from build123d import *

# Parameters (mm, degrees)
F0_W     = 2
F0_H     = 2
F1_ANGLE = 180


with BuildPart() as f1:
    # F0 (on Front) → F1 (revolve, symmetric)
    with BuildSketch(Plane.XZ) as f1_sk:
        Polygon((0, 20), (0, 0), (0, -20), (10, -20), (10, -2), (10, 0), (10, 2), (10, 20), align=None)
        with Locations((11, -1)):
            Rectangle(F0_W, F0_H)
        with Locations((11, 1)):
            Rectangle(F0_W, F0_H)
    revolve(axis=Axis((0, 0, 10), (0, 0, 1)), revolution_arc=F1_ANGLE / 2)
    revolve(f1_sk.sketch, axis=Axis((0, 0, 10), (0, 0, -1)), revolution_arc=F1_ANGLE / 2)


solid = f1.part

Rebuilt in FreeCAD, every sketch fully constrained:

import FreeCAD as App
import Part
import Sketcher
from FreeCAD import Vector

doc = App.newDocument("Part")
body = doc.addObject("PartDesign::Body", "Body")

# Sketch on XZ plane
sketch1 = doc.addObject("Sketcher::SketchObject", "Sketch")
body.addObject(sketch1)
sketch1.AttachmentSupport = (doc.XZ_Plane, [""])
sketch1.MapMode = "FlatFace"
sketch1.addGeometry([
    Part.LineSegment(Vector(0, 20, 0), Vector(0, -20, 0)),  # 0
    Part.LineSegment(Vector(0, -20, 0), Vector(10, -20, 0)),  # 1
    Part.LineSegment(Vector(10, -20, 0), Vector(10, -2, 0)),  # 2
    Part.LineSegment(Vector(10, -2, 0), Vector(12, -2, 0)),  # 3
    Part.LineSegment(Vector(12, -2, 0), Vector(12, 2, 0)),  # 4
    Part.LineSegment(Vector(12, 2, 0), Vector(10, 2, 0)),  # 5
    Part.LineSegment(Vector(10, 2, 0), Vector(10, 20, 0)),  # 6
    Part.LineSegment(Vector(10, 20, 0), Vector(0, 20, 0)),  # 7
], False)
sketch1.addConstraint([
    Sketcher.Constraint("Coincident", 0, 2, 1, 1),
    Sketcher.Constraint("Coincident", 1, 2, 2, 1),
    Sketcher.Constraint("Coincident", 2, 2, 3, 1),
    Sketcher.Constraint("Coincident", 3, 2, 4, 1),
    Sketcher.Constraint("Coincident", 4, 2, 5, 1),
    Sketcher.Constraint("Coincident", 5, 2, 6, 1),
    Sketcher.Constraint("Coincident", 6, 2, 7, 1),
    Sketcher.Constraint("Coincident", 7, 2, 0, 1),
    Sketcher.Constraint("Vertical", 0),
    Sketcher.Constraint("Horizontal", 1),
    Sketcher.Constraint("Vertical", 2),
    Sketcher.Constraint("Horizontal", 3),
    Sketcher.Constraint("Vertical", 4),
    Sketcher.Constraint("Horizontal", 5),
    Sketcher.Constraint("Vertical", 6),
    Sketcher.Constraint("Horizontal", 7),
    Sketcher.Constraint("Symmetric", 0, 2, 7, 2, -1, 1),
    Sketcher.Constraint("Symmetric", 2, 2, 5, 2, -1),
    Sketcher.Constraint("DistanceX", 1, 1, 1, 2, 10.0),
    Sketcher.Constraint("DistanceX", 3, 1, 3, 2, 2.0),
    Sketcher.Constraint("DistanceY", 0, 2, 0, 1, 40.0),
    Sketcher.Constraint("DistanceY", 2, 1, 2, 2, 18.0),
])
revolution = doc.addObject("PartDesign::Revolution", "Revolution")
body.addObject(revolution)
revolution.Profile = sketch1
revolution.ReferenceAxis = (sketch1, ["V_Axis"])
revolution.Angle = 90

# Sketch on XZ plane
sketch2 = doc.addObject("Sketcher::SketchObject", "Sketch001")
body.addObject(sketch2)
sketch2.AttachmentSupport = (doc.XZ_Plane, [""])
sketch2.MapMode = "FlatFace"
sketch2.addGeometry([
    Part.LineSegment(Vector(0, 20, 0), Vector(0, -20, 0)),  # 0
    Part.LineSegment(Vector(0, -20, 0), Vector(10, -20, 0)),  # 1
    Part.LineSegment(Vector(10, -20, 0), Vector(10, -2, 0)),  # 2
    Part.LineSegment(Vector(10, -2, 0), Vector(12, -2, 0)),  # 3
    Part.LineSegment(Vector(12, -2, 0), Vector(12, 2, 0)),  # 4
    Part.LineSegment(Vector(12, 2, 0), Vector(10, 2, 0)),  # 5
    Part.LineSegment(Vector(10, 2, 0), Vector(10, 20, 0)),  # 6
    Part.LineSegment(Vector(10, 20, 0), Vector(0, 20, 0)),  # 7
], False)
sketch2.addConstraint([
    Sketcher.Constraint("Coincident", 0, 2, 1, 1),
    Sketcher.Constraint("Coincident", 1, 2, 2, 1),
    Sketcher.Constraint("Coincident", 2, 2, 3, 1),
    Sketcher.Constraint("Coincident", 3, 2, 4, 1),
    Sketcher.Constraint("Coincident", 4, 2, 5, 1),
    Sketcher.Constraint("Coincident", 5, 2, 6, 1),
    Sketcher.Constraint("Coincident", 6, 2, 7, 1),
    Sketcher.Constraint("Coincident", 7, 2, 0, 1),
    Sketcher.Constraint("Vertical", 0),
    Sketcher.Constraint("Horizontal", 1),
    Sketcher.Constraint("Vertical", 2),
    Sketcher.Constraint("Horizontal", 3),
    Sketcher.Constraint("Vertical", 4),
    Sketcher.Constraint("Horizontal", 5),
    Sketcher.Constraint("Vertical", 6),
    Sketcher.Constraint("Horizontal", 7),
    Sketcher.Constraint("Symmetric", 0, 2, 7, 2, -1, 1),
    Sketcher.Constraint("Symmetric", 2, 2, 5, 2, -1),
    Sketcher.Constraint("DistanceX", 1, 1, 1, 2, 10.0),
    Sketcher.Constraint("DistanceX", 3, 1, 3, 2, 2.0),
    Sketcher.Constraint("DistanceY", 0, 2, 0, 1, 40.0),
    Sketcher.Constraint("DistanceY", 2, 1, 2, 2, 18.0),
])
revolution2 = doc.addObject("PartDesign::Revolution", "Revolution001")
body.addObject(revolution2)
revolution2.Profile = sketch2
revolution2.ReferenceAxis = (sketch2, ["V_Axis"])
revolution2.Angle = 90
revolution2.Reversed = True

doc.recompute()
